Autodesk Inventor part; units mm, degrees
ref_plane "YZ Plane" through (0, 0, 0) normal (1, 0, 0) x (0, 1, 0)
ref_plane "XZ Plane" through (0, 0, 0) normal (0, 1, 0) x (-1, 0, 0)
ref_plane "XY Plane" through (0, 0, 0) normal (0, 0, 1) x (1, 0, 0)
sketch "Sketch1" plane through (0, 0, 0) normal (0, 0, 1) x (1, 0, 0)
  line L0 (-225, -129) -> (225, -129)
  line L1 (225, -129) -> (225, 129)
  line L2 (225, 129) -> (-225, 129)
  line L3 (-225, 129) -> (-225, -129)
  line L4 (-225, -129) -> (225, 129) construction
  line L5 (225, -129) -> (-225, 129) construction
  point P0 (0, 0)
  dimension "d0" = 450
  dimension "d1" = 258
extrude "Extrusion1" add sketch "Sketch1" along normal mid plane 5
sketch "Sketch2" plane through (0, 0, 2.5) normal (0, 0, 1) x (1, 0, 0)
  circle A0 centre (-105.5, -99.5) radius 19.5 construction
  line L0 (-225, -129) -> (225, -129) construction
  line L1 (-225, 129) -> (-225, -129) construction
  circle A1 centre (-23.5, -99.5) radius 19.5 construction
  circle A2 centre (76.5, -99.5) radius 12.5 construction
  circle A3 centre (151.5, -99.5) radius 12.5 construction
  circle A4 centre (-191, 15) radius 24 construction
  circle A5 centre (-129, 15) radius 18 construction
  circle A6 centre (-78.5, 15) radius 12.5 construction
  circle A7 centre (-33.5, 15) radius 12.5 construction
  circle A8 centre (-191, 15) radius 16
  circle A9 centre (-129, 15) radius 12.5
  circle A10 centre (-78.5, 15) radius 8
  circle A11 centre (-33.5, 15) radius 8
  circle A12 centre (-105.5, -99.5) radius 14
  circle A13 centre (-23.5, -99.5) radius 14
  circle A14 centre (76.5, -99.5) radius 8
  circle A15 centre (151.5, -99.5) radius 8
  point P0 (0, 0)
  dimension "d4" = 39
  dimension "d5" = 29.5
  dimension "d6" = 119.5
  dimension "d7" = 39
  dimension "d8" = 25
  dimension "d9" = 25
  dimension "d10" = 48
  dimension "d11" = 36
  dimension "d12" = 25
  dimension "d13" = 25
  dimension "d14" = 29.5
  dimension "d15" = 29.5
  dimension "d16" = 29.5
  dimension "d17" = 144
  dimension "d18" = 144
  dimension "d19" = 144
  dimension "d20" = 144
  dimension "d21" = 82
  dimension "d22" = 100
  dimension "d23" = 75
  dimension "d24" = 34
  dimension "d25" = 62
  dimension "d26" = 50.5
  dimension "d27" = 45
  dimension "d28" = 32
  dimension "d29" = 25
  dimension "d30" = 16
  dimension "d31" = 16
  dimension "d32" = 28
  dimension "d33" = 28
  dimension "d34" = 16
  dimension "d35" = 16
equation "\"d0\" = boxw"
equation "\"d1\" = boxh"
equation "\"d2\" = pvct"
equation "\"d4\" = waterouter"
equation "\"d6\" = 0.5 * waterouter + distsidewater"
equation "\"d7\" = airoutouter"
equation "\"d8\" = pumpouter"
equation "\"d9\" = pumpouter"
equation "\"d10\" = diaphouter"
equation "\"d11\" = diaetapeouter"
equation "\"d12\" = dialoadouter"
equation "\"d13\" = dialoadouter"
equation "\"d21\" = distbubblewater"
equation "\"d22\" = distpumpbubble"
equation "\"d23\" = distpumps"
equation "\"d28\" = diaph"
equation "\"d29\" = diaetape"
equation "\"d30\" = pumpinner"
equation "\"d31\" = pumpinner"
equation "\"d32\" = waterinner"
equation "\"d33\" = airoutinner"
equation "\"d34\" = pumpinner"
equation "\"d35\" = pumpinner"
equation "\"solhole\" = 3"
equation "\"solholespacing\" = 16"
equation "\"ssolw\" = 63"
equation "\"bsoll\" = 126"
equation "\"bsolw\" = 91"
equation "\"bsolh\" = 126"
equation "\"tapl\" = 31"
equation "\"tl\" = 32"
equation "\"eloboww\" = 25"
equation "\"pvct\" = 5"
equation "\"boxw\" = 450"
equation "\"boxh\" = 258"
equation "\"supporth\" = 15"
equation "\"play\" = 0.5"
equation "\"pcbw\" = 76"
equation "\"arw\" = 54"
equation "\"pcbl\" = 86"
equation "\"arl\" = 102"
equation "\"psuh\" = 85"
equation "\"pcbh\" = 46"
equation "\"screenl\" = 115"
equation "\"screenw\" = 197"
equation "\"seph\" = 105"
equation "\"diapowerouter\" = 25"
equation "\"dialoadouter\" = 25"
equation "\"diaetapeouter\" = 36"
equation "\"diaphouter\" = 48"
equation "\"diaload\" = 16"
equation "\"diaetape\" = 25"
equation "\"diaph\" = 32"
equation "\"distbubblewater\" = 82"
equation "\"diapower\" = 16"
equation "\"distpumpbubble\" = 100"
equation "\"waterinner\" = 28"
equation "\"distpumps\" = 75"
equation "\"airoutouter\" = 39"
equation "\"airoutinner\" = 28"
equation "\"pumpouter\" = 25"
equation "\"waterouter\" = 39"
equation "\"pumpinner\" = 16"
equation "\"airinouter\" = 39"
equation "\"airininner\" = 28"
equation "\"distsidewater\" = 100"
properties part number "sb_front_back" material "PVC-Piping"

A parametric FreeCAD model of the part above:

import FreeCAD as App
import Part
import Sketcher

V = App.Vector
Q = App.Units.Quantity


def add_polygon(sketch, points):
    """Adds a closed chain of lines whose ends are joined by coincident constraints."""
    first, n = sketch.GeometryCount, len(points)
    for a, b in zip(points, points[1:] + points[:1]):
        sketch.addGeometry(Part.LineSegment(App.Vector(*a, 0), App.Vector(*b, 0)), False)
    for i in range(n):
        sketch.addConstraint(Sketcher.Constraint("Coincident", first + i, 2, first + (i + 1) % n, 1))

doc = App.newDocument("Part")
body = doc.addObject("PartDesign::Body", "Body")

sketch1 = doc.addObject("Sketcher::SketchObject", "Sketch")
body.addObject(sketch1)
sketch1.AttachmentSupport = (doc.XY_Plane, [""])
sketch1.MapMode = "FlatFace"
add_polygon(sketch1, [(-225, 129), (-225, -129), (225, -129), (225, 129)])
sketch1.addConstraint([
    Sketcher.Constraint("Vertical", 0),
    Sketcher.Constraint("Horizontal", 1),
    Sketcher.Constraint("Vertical", 2),
    Sketcher.Constraint("Horizontal", 3),
    Sketcher.Constraint("Symmetric", 0, 2, 2, 2, -1, 1),
    Sketcher.Constraint("DistanceX", 1, 1, 1, 2, Q("450 mm")),
    Sketcher.Constraint("DistanceY", 0, 2, 0, 1, Q("258 mm")),
])
pad1 = doc.addObject("PartDesign::Pad", "Pad")
body.addObject(pad1)
pad1.Profile = sketch1
pad1.Length = 5
pad1.Midplane = True

doc.recompute()
